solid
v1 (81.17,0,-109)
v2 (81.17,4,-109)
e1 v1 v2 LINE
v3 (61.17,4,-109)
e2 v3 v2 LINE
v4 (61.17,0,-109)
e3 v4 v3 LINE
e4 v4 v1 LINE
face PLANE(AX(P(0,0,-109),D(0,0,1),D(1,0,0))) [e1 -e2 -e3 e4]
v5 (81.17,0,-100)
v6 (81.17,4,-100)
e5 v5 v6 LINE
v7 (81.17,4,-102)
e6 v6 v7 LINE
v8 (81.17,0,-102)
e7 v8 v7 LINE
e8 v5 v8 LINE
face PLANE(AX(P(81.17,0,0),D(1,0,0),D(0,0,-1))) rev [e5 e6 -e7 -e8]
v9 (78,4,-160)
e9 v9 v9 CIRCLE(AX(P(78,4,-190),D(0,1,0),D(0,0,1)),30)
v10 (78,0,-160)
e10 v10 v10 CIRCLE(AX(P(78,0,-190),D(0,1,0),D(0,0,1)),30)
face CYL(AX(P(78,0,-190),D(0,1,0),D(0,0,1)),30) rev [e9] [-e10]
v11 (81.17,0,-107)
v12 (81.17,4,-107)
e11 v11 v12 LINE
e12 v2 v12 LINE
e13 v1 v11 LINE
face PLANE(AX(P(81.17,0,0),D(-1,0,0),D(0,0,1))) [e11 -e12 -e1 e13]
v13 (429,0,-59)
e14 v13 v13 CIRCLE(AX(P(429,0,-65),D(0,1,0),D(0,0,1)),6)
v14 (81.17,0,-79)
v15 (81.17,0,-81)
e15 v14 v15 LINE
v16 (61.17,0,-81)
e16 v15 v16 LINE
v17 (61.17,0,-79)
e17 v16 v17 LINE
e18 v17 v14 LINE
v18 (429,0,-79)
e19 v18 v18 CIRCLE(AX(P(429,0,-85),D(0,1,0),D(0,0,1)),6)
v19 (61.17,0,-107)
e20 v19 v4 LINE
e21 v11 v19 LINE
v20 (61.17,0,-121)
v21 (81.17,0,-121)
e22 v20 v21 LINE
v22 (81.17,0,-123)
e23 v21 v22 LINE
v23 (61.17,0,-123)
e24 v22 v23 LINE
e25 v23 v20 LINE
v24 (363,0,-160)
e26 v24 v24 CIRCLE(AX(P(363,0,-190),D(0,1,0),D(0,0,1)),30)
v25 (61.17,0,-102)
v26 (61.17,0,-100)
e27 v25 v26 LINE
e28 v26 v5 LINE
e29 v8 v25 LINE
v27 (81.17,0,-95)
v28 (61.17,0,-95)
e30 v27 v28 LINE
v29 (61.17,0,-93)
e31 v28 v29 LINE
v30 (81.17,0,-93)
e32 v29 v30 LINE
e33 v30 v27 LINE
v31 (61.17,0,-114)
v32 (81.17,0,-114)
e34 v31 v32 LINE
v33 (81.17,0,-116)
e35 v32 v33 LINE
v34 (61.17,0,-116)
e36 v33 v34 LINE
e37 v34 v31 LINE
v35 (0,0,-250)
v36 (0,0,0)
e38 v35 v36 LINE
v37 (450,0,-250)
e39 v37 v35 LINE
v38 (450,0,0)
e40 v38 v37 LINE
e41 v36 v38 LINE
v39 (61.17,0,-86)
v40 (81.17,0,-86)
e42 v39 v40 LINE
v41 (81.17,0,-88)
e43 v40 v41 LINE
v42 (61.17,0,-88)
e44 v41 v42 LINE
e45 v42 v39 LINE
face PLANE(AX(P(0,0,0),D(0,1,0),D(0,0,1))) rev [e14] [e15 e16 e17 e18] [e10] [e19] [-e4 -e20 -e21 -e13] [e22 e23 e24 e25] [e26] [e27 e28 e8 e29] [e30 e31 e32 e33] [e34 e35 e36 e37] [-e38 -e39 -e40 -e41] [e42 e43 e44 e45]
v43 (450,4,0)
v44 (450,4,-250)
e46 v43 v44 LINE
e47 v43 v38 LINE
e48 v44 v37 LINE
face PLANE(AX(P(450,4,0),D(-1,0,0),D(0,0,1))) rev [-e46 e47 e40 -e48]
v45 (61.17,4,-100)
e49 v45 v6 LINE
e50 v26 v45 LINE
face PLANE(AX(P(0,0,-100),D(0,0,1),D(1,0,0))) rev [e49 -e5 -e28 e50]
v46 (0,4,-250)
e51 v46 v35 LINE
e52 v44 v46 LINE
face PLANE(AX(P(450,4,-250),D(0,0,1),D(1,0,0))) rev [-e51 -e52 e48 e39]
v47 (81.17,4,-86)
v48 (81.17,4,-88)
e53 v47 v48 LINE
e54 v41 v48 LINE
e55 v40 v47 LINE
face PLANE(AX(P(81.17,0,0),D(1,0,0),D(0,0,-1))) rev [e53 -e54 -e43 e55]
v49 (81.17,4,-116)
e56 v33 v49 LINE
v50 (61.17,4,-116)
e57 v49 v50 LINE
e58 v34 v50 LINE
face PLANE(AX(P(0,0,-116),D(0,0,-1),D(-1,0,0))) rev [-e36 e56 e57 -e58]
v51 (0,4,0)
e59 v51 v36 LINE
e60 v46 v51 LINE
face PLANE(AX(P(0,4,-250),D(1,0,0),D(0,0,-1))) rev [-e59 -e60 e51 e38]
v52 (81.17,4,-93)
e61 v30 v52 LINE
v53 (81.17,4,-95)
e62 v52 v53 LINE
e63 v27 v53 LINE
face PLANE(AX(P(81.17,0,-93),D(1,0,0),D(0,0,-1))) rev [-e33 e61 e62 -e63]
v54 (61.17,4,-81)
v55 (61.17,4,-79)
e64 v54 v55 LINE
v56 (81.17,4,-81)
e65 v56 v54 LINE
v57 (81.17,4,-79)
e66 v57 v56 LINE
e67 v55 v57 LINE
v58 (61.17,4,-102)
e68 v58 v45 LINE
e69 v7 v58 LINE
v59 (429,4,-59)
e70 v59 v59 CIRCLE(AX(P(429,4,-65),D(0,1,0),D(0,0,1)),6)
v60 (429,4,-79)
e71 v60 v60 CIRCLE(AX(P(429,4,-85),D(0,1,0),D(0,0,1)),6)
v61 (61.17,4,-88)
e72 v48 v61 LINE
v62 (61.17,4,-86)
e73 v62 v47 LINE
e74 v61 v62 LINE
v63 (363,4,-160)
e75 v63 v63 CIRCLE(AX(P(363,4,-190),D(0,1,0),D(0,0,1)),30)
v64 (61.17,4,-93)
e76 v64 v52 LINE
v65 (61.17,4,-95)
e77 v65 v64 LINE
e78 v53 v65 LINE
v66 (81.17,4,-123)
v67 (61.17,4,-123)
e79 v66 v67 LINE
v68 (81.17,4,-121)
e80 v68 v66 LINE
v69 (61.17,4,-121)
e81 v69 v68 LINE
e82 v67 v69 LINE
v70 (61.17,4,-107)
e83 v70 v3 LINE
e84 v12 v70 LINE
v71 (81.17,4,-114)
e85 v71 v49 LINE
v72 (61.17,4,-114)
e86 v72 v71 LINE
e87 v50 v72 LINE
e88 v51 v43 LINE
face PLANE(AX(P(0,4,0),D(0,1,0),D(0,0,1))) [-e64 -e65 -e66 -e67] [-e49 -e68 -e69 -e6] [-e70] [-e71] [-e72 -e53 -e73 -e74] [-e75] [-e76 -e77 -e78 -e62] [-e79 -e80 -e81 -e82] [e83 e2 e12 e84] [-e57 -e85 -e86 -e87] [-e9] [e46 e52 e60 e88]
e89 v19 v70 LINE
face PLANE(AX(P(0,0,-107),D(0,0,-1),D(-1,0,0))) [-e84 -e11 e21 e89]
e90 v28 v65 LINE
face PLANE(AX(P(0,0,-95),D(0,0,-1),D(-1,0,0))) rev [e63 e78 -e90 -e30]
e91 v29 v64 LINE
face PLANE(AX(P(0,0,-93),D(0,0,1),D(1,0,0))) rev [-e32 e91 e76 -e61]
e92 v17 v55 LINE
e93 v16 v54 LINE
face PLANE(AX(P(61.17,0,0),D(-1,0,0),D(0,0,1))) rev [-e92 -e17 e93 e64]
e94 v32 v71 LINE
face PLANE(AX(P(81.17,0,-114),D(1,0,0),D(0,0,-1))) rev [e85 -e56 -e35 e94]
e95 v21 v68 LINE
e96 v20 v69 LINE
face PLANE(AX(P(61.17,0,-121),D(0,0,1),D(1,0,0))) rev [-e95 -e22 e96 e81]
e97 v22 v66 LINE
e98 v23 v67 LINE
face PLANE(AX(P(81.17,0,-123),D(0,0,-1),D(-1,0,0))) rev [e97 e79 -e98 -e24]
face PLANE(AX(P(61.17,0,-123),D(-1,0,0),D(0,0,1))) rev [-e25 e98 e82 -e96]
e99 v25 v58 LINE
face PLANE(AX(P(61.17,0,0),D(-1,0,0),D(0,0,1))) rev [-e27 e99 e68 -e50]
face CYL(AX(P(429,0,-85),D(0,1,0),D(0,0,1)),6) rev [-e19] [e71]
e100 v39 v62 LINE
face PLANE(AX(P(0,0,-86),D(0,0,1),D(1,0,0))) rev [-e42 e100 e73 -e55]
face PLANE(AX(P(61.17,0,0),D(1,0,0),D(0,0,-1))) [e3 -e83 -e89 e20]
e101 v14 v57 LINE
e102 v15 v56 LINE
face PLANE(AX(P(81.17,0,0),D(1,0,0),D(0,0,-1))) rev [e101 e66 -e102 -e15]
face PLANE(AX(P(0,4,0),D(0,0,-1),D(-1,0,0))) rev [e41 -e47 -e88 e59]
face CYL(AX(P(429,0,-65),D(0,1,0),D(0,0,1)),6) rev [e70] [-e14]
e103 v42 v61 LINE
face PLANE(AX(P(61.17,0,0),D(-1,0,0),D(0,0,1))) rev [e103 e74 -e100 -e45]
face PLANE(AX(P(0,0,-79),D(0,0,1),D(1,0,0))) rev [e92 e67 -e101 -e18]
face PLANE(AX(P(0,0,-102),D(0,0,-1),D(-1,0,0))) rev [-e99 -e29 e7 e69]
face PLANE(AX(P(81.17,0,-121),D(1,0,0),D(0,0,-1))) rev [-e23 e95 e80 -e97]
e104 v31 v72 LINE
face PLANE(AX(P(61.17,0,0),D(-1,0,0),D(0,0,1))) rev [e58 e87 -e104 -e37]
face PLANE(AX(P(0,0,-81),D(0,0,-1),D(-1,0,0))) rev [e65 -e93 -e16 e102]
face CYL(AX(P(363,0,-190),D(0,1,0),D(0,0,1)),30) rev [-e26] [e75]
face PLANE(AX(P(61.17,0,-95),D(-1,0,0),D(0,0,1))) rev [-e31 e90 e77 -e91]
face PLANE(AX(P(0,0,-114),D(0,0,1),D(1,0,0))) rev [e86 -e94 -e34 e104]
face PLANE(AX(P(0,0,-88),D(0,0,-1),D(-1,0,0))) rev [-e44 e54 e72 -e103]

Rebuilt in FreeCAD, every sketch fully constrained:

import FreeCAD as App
import Part
import Sketcher
Q = App.Units.Quantity

doc = App.newDocument("Part")
body = doc.addObject("PartDesign::Body", "Body")

# Sketch on XZ plane
sketch1 = body.newObject("Sketcher::SketchObject", "Sketch")
sketch1.AttachmentSupport = (doc.getObject("XZ_Plane"), [""])
sketch1.MapMode = "FlatFace"
sketch1.addGeometry(Part.LineSegment(App.Vector(0, -250, 0), App.Vector(0, 0, 0)), False)
sketch1.addGeometry(Part.LineSegment(App.Vector(0, 0, 0), App.Vector(450, 0, 0)), False)
sketch1.addGeometry(Part.LineSegment(App.Vector(450, 0, 0), App.Vector(450, -250, 0)), False)
sketch1.addGeometry(Part.LineSegment(App.Vector(450, -250, 0), App.Vector(0, -250, 0)), False)
sketch1.addConstraint(Sketcher.Constraint("Coincident", 0, 2, 1, 1))
sketch1.addConstraint(Sketcher.Constraint("Coincident", 1, 2, 2, 1))
sketch1.addConstraint(Sketcher.Constraint("Coincident", 2, 2, 3, 1))
sketch1.addConstraint(Sketcher.Constraint("Coincident", 3, 2, 0, 1))
sketch1.addConstraint(Sketcher.Constraint("Vertical", 0))
sketch1.addConstraint(Sketcher.Constraint("Horizontal", 1))
sketch1.addConstraint(Sketcher.Constraint("Vertical", 2))
sketch1.addConstraint(Sketcher.Constraint("Horizontal", 3))
sketch1.addConstraint(Sketcher.Constraint("Coincident", 0, 2, -1, 1))
sketch1.addConstraint(Sketcher.Constraint("DistanceX", 1, 1, 1, 2, Q("450 mm")))
sketch1.addConstraint(Sketcher.Constraint("DistanceY", 0, 1, 0, 2, Q("250 mm")))
pad1 = body.newObject("PartDesign::Pad", "Pad")
pad1.Profile = sketch1
pad1.Length = 4
pad1.Reversed = True

# Sketch on XZ plane
sketch2 = body.newObject("Sketcher::SketchObject", "Sketch001")
sketch2.AttachmentSupport = (doc.getObject("XZ_Plane"), [""])
sketch2.MapMode = "FlatFace"
sketch2.AttachmentOffset = App.Placement(App.Vector(0, 0, -4), App.Rotation())
sketch2.addGeometry(Part.Circle(App.Vector(78, -190, 0), App.Vector(0, 0, 1), 30), False)
sketch2.addGeometry(Part.Circle(App.Vector(363, -190, 0), App.Vector(0, 0, 1), 30), False)
sketch2.addConstraint(Sketcher.Constraint("Equal", 0, 1))
sketch2.addConstraint(Sketcher.Constraint("Horizontal", 0, 3, 1, 3))
sketch2.addConstraint(Sketcher.Constraint("Diameter", 0, Q("60 mm")))
sketch2.addConstraint(Sketcher.Constraint("DistanceX", -1, 1, 0, 3, Q("78 mm")))
sketch2.addConstraint(Sketcher.Constraint("DistanceY", 0, 3, -1, 1, Q("190 mm")))
sketch2.addConstraint(Sketcher.Constraint("DistanceX", -1, 1, 1, 3, Q("363 mm")))
pocket1 = body.newObject("PartDesign::Pocket", "Pocket")
pocket1.Profile = sketch2
pocket1.Type = "ThroughAll"
pocket1.Reversed = True

# Sketch on XZ plane
sketch3 = body.newObject("Sketcher::SketchObject", "Sketch002")
sketch3.AttachmentSupport = (doc.getObject("XZ_Plane"), [""])
sketch3.MapMode = "FlatFace"
sketch3.AttachmentOffset = App.Placement(App.Vector(0, 0, -4), App.Rotation())
sketch3.addGeometry(Part.Circle(App.Vector(429, -85, 0), App.Vector(0, 0, 1), 6), False)
sketch3.addGeometry(Part.Circle(App.Vector(429, -65, 0), App.Vector(0, 0, 1), 6), False)
sketch3.addGeometry(Part.LineSegment(App.Vector(61.2, -123, 0), App.Vector(61.2, -121, 0)), False)
sketch3.addGeometry(Part.LineSegment(App.Vector(61.2, -121, 0), App.Vector(81.2, -121, 0)), False)
sketch3.addGeometry(Part.LineSegment(App.Vector(81.2, -121, 0), App.Vector(81.2, -123, 0)), False)
sketch3.addGeometry(Part.LineSegment(App.Vector(81.2, -123, 0), App.Vector(61.2, -123, 0)), False)
sketch3.addGeometry(Part.LineSegment(App.Vector(61.2, -102, 0), App.Vector(61.2, -100, 0)), False)
sketch3.addGeometry(Part.LineSegment(App.Vector(61.2, -100, 0), App.Vector(81.2, -100, 0)), False)
sketch3.addGeometry(Part.LineSegment(App.Vector(81.2, -100, 0), App.Vector(81.2, -102, 0)), False)
sketch3.addGeometry(Part.LineSegment(App.Vector(81.2, -102, 0), App.Vector(61.2, -102, 0)), False)
sketch3.addGeometry(Part.LineSegment(App.Vector(61.2, -116, 0), App.Vector(61.2, -114, 0)), False)
sketch3.addGeometry(Part.LineSegment(App.Vector(61.2, -114, 0), App.Vector(81.2, -114, 0)), False)
sketch3.addGeometry(Part.LineSegment(App.Vector(81.2, -114, 0), App.Vector(81.2, -116, 0)), False)
sketch3.addGeometry(Part.LineSegment(App.Vector(81.2, -116, 0), App.Vector(61.2, -116, 0)), False)
sketch3.addGeometry(Part.LineSegment(App.Vector(61.2, -109, 0), App.Vector(61.2, -107, 0)), False)
sketch3.addGeometry(Part.LineSegment(App.Vector(61.2, -107, 0), App.Vector(81.2, -107, 0)), False)
sketch3.addGeometry(Part.LineSegment(App.Vector(81.2, -107, 0), App.Vector(81.2, -109, 0)), False)
sketch3.addGeometry(Part.LineSegment(App.Vector(81.2, -109, 0), App.Vector(61.2, -109, 0)), False)
sketch3.addGeometry(Part.LineSegment(App.Vector(61.2, -95, 0), App.Vector(61.2, -93, 0)), False)
sketch3.addGeometry(Part.LineSegment(App.Vector(61.2, -93, 0), App.Vector(81.2, -93, 0)), False)
sketch3.addGeometry(Part.LineSegment(App.Vector(81.2, -93, 0), App.Vector(81.2, -95, 0)), False)
sketch3.addGeometry(Part.LineSegment(App.Vector(81.2, -95, 0), App.Vector(61.2, -95, 0)), False)
sketch3.addGeometry(Part.LineSegment(App.Vector(61.2, -88, 0), App.Vector(61.2, -86, 0)), False)
sketch3.addGeometry(Part.LineSegment(App.Vector(61.2, -86, 0), App.Vector(81.2, -86, 0)), False)
sketch3.addGeometry(Part.LineSegment(App.Vector(81.2, -86, 0), App.Vector(81.2, -88, 0)), False)
sketch3.addGeometry(Part.LineSegment(App.Vector(81.2, -88, 0), App.Vector(61.2, -88, 0)), False)
sketch3.addGeometry(Part.LineSegment(App.Vector(61.2, -81, 0), App.Vector(61.2, -79, 0)), False)
sketch3.addGeometry(Part.LineSegment(App.Vector(61.2, -79, 0), App.Vector(81.2, -79, 0)), False)
sketch3.addGeometry(Part.LineSegment(App.Vector(81.2, -79, 0), App.Vector(81.2, -81, 0)), False)
sketch3.addGeometry(Part.LineSegment(App.Vector(81.2, -81, 0), App.Vector(61.2, -81, 0)), False)
sketch3.addConstraint(Sketcher.Constraint("Coincident", 2, 2, 3, 1))
sketch3.addConstraint(Sketcher.Constraint("Coincident", 3, 2, 4, 1))
sketch3.addConstraint(Sketcher.Constraint("Coincident", 4, 2, 5, 1))
sketch3.addConstraint(Sketcher.Constraint("Coincident", 5, 2, 2, 1))
sketch3.addConstraint(Sketcher.Constraint("Coincident", 6, 2, 7, 1))
sketch3.addConstraint(Sketcher.Constraint("Coincident", 7, 2, 8, 1))
sketch3.addConstraint(Sketcher.Constraint("Coincident", 8, 2, 9, 1))
sketch3.addConstraint(Sketcher.Constraint("Coincident", 9, 2, 6, 1))
sketch3.addConstraint(Sketcher.Constraint("Coincident", 10, 2, 11, 1))
sketch3.addConstraint(Sketcher.Constraint("Coincident", 11, 2, 12, 1))
sketch3.addConstraint(Sketcher.Constraint("Coincident", 12, 2, 13, 1))
sketch3.addConstraint(Sketcher.Constraint("Coincident", 13, 2, 10, 1))
sketch3.addConstraint(Sketcher.Constraint("Coincident", 14, 2, 15, 1))
sketch3.addConstraint(Sketcher.Constraint("Coincident", 15, 2, 16, 1))
sketch3.addConstraint(Sketcher.Constraint("Coincident", 16, 2, 17, 1))
sketch3.addConstraint(Sketcher.Constraint("Coincident", 17, 2, 14, 1))
sketch3.addConstraint(Sketcher.Constraint("Coincident", 18, 2, 19, 1))
sketch3.addConstraint(Sketcher.Constraint("Coincident", 19, 2, 20, 1))
sketch3.addConstraint(Sketcher.Constraint("Coincident", 20, 2, 21, 1))
sketch3.addConstraint(Sketcher.Constraint("Coincident", 21, 2, 18, 1))
sketch3.addConstraint(Sketcher.Constraint("Coincident", 22, 2, 23, 1))
sketch3.addConstraint(Sketcher.Constraint("Coincident", 23, 2, 24, 1))
sketch3.addConstraint(Sketcher.Constraint("Coincident", 24, 2, 25, 1))
sketch3.addConstraint(Sketcher.Constraint("Coincident", 25, 2, 22, 1))
sketch3.addConstraint(Sketcher.Constraint("Coincident", 26, 2, 27, 1))
sketch3.addConstraint(Sketcher.Constraint("Coincident", 27, 2, 28, 1))
sketch3.addConstraint(Sketcher.Constraint("Coincident", 28, 2, 29, 1))
sketch3.addConstraint(Sketcher.Constraint("Coincident", 29, 2, 26, 1))
sketch3.addConstraint(Sketcher.Constraint("Vertical", 2))
sketch3.addConstraint(Sketcher.Constraint("Horizontal", 3))
sketch3.addConstraint(Sketcher.Constraint("Vertical", 4))
sketch3.addConstraint(Sketcher.Constraint("Horizontal", 5))
sketch3.addConstraint(Sketcher.Constraint("Vertical", 6))
sketch3.addConstraint(Sketcher.Constraint("Horizontal", 7))
sketch3.addConstraint(Sketcher.Constraint("Vertical", 8))
sketch3.addConstraint(Sketcher.Constraint("Horizontal", 9))
sketch3.addConstraint(Sketcher.Constraint("Vertical", 10))
sketch3.addConstraint(Sketcher.Constraint("Horizontal", 11))
sketch3.addConstraint(Sketcher.Constraint("Vertical", 12))
sketch3.addConstraint(Sketcher.Constraint("Horizontal", 13))
sketch3.addConstraint(Sketcher.Constraint("Vertical", 14))
sketch3.addConstraint(Sketcher.Constraint("Horizontal", 15))
sketch3.addConstraint(Sketcher.Constraint("Vertical", 16))
sketch3.addConstraint(Sketcher.Constraint("Horizontal", 17))
sketch3.addConstraint(Sketcher.Constraint("Vertical", 18))
sketch3.addConstraint(Sketcher.Constraint("Horizontal", 19))
sketch3.addConstraint(Sketcher.Constraint("Vertical", 20))
sketch3.addConstraint(Sketcher.Constraint("Horizontal", 21))
sketch3.addConstraint(Sketcher.Constraint("Vertical", 22))
sketch3.addConstraint(Sketcher.Constraint("Horizontal", 23))
sketch3.addConstraint(Sketcher.Constraint("Vertical", 24))
sketch3.addConstraint(Sketcher.Constraint("Horizontal", 25))
sketch3.addConstraint(Sketcher.Constraint("Vertical", 26))
sketch3.addConstraint(Sketcher.Constraint("Horizontal", 27))
sketch3.addConstraint(Sketcher.Constraint("Vertical", 28))
sketch3.addConstraint(Sketcher.Constraint("Horizontal", 29))
sketch3.addConstraint(Sketcher.Constraint("Equal", 0, 1))
sketch3.addConstraint(Sketcher.Constraint("Vertical", 0, 3, 1, 3))
sketch3.addConstraint(Sketcher.Constraint("Vertical", 5, 2, 6, 2))
sketch3.addConstraint(Sketcher.Constraint("Vertical", 4, 2, 7, 2))
sketch3.addConstraint(Sketcher.Constraint("Vertical", 9, 2, 10, 2))
sketch3.addConstraint(Sketcher.Constraint("Vertical", 8, 2, 11, 2))
sketch3.addConstraint(Sketcher.Constraint("Vertical", 13, 2, 14, 2))
sketch3.addConstraint(Sketcher.Constraint("Vertical", 12, 2, 15, 2))
sketch3.addConstraint(Sketcher.Constraint("Vertical", 17, 2, 18, 2))
sketch3.addConstraint(Sketcher.Constraint("Vertical", 16, 2, 19, 2))
sketch3.addConstraint(Sketcher.Constraint("Vertical", 21, 2, 22, 2))
sketch3.addConstraint(Sketcher.Constraint("Vertical", 20, 2, 23, 2))
sketch3.addConstraint(Sketcher.Constraint("Vertical", 25, 2, 26, 2))
sketch3.addConstraint(Sketcher.Constraint("Vertical", 24, 2, 27, 2))
sketch3.addConstraint(Sketcher.Constraint("Equal", 4, 6))
sketch3.addConstraint(Sketcher.Constraint("Equal", 8, 10))
sketch3.addConstraint(Sketcher.Constraint("Equal", 12, 14))
sketch3.addConstraint(Sketcher.Constraint("Equal", 16, 18))
sketch3.addConstraint(Sketcher.Constraint("Equal", 20, 22))
sketch3.addConstraint(Sketcher.Constraint("Equal", 24, 26))
sketch3.addConstraint(Sketcher.Constraint("Diameter", 0, Q("12 mm")))
sketch3.addConstraint(Sketcher.Constraint("DistanceX", 3, 1, 3, 2, Q("20 mm")))
sketch3.addConstraint(Sketcher.Constraint("DistanceY", 2, 1, 2, 2, Q("2 mm")))
sketch3.addConstraint(Sketcher.Constraint("DistanceX", -1, 1, 0, 3, Q("429 mm")))
sketch3.addConstraint(Sketcher.Constraint("DistanceY", 0, 3, -1, 1, Q("85 mm")))
sketch3.addConstraint(Sketcher.Constraint("DistanceY", 1, 3, -1, 1, Q("65 mm")))
sketch3.addConstraint(Sketcher.Constraint("DistanceY", 2, 2, -1, 1, Q("121 mm")))
sketch3.addConstraint(Sketcher.Constraint("DistanceY", 6, 2, -1, 1, Q("100 mm")))
sketch3.addConstraint(Sketcher.Constraint("DistanceY", 10, 2, -1, 1, Q("114 mm")))
sketch3.addConstraint(Sketcher.Constraint("DistanceY", 14, 2, -1, 1, Q("107 mm")))
sketch3.addConstraint(Sketcher.Constraint("DistanceY", 18, 2, -1, 1, Q("93 mm")))
sketch3.addConstraint(Sketcher.Constraint("DistanceY", 22, 2, -1, 1, Q("86 mm")))
sketch3.addConstraint(Sketcher.Constraint("DistanceY", 26, 2, -1, 1, Q("79 mm")))
sketch3.addConstraint(Sketcher.Constraint("DistanceX", -1, 1, 2, 2, Q("61.17 mm")))
pocket2 = body.newObject("PartDesign::Pocket", "Pocket001")
pocket2.Profile = sketch3
pocket2.Type = "ThroughAll"
pocket2.Reversed = True

doc.recompute()
